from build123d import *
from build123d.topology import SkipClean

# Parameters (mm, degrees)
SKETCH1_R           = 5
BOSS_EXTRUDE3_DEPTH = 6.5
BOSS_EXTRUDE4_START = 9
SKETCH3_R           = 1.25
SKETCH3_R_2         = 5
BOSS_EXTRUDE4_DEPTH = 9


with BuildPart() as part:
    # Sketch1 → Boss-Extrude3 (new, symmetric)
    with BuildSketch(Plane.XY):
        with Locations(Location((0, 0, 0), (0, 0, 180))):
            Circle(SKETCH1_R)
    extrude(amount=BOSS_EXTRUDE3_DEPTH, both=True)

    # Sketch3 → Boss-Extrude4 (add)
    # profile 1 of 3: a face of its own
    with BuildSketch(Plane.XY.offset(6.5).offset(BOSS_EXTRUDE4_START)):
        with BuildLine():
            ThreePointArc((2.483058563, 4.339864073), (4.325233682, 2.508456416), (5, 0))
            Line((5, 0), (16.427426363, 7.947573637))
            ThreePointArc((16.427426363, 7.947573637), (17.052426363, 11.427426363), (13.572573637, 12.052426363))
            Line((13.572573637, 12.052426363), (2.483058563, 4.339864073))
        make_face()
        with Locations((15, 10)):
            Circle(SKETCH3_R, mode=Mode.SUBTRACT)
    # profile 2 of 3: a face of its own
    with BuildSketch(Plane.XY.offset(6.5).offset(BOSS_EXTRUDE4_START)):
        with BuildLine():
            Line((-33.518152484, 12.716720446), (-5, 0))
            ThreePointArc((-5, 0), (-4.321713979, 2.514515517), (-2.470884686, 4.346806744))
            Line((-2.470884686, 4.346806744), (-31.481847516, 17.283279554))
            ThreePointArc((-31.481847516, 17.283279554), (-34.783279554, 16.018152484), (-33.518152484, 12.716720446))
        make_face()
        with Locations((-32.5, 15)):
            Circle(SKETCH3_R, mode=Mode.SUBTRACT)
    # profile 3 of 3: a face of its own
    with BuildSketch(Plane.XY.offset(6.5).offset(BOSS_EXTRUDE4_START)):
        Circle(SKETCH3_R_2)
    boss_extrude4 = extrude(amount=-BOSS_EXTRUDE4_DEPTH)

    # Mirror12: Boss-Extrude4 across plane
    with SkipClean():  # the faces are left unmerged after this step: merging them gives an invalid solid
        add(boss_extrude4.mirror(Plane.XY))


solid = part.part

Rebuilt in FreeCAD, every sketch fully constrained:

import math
import FreeCAD as App
import Part
import Sketcher

doc = App.newDocument("Part")
body = doc.addObject("PartDesign::Body", "Body")

sketch1 = doc.addObject("Sketcher::SketchObject", "Sketch")
body.addObject(sketch1)
sketch1.AttachmentSupport = (doc.XY_Plane, [""])
sketch1.MapMode = "FlatFace"
sketch1.addGeometry(Part.Circle(App.Vector(0, 0, 0), App.Vector(0, 0, 1), 5), False)
sketch1.addConstraint(Sketcher.Constraint("Coincident", 0, 3, -1, 1))
sketch1.addConstraint(Sketcher.Constraint("Diameter", 0, 10.0))
pad1 = doc.addObject("PartDesign::Pad", "Pad")
body.addObject(pad1)
pad1.Profile = sketch1
pad1.Length = 13
pad1.Midplane = True

sketch2 = doc.addObject("Sketcher::SketchObject", "Sketch001")
body.addObject(sketch2)
sketch2.AttachmentSupport = (doc.XY_Plane, [""])
sketch2.MapMode = "FlatFace"
sketch2.AttachmentOffset = App.Placement(App.Vector(0, 0, 15.5), App.Rotation())
sketch2.addGeometry(Part.LineSegment(App.Vector(13.572574, 12.052426, 0), App.Vector(2.483059, 4.339864, 0)), False)
sketch2.addGeometry(Part.ArcOfCircle(Part.Circle(App.Vector(0, 0, 0), App.Vector(0, 0, 1), 5), math.radians(60.223915), math.radians(119.615491)), False)
sketch2.addGeometry(Part.LineSegment(App.Vector(-2.470885, 4.346807, 0), App.Vector(-31.481848, 17.28328, 0)), False)
sketch2.addGeometry(Part.ArcOfCircle(Part.Circle(App.Vector(-32.5, 15, 0), App.Vector(0, 0, 1), 2.5), math.radians(65.96711), math.radians(245.96711)), False)
sketch2.addGeometry(Part.LineSegment(App.Vector(-33.518152, 12.71672, 0), App.Vector(-5, 0, 0)), False)
sketch2.addGeometry(Part.ArcOfCircle(Part.Circle(App.Vector(0, 0, 0), App.Vector(0, 0, 1), 5), math.radians(180), math.radians(360)), False)
sketch2.addGeometry(Part.LineSegment(App.Vector(5, 0, 0), App.Vector(16.427426, 7.947574, 0)), False)
sketch2.addGeometry(Part.ArcOfCircle(Part.Circle(App.Vector(15, 10, 0), App.Vector(0, 0, 1), 2.5), math.radians(-55.182067), math.radians(124.817933)), False)
sketch2.addGeometry(Part.Circle(App.Vector(15, 10, 0), App.Vector(0, 0, 1), 1.25), False)
sketch2.addGeometry(Part.Circle(App.Vector(-32.5, 15, 0), App.Vector(0, 0, 1), 1.25), False)
sketch2.addConstraint(Sketcher.Constraint("Coincident", 0, 2, 1, 1))
sketch2.addConstraint(Sketcher.Constraint("Coincident", 1, 2, 2, 1))
sketch2.addConstraint(Sketcher.Constraint("Tangent", 2, 2, 3, 1))
sketch2.addConstraint(Sketcher.Constraint("Tangent", 3, 2, 4, 1))
sketch2.addConstraint(Sketcher.Constraint("Coincident", 4, 2, 5, 1))
sketch2.addConstraint(Sketcher.Constraint("Coincident", 5, 2, 6, 1))
sketch2.addConstraint(Sketcher.Constraint("Tangent", 6, 2, 7, 1))
sketch2.addConstraint(Sketcher.Constraint("Tangent", 7, 2, 0, 1))
sketch2.addConstraint(Sketcher.Constraint("Coincident", 1, 3, -1, 1))
sketch2.addConstraint(Sketcher.Constraint("Coincident", 5, 3, -1, 1))
sketch2.addConstraint(Sketcher.Constraint("Coincident", 8, 3, 7, 3))
sketch2.addConstraint(Sketcher.Constraint("Coincident", 9, 3, 3, 3))
sketch2.addConstraint(Sketcher.Constraint("Equal", 1, 5))
sketch2.addConstraint(Sketcher.Constraint("Equal", 3, 7))
sketch2.addConstraint(Sketcher.Constraint("Equal", 8, 9))
sketch2.addConstraint(Sketcher.Constraint("PointOnObject", 4, 2, -1))
sketch2.addConstraint(Sketcher.Constraint("PointOnObject", 5, 2, -1))
sketch2.addConstraint(Sketcher.Constraint("Parallel", 2, 4))
sketch2.addConstraint(Sketcher.Constraint("Parallel", 0, 6))
sketch2.addConstraint(Sketcher.Constraint("Radius", 1, 5.0))
sketch2.addConstraint(Sketcher.Constraint("Diameter", 8, 2.5))
sketch2.addConstraint(Sketcher.Constraint("Radius", 3, 2.5))
sketch2.addConstraint(Sketcher.Constraint("DistanceY", -1, 1, 3, 3, 15.0))
sketch2.addConstraint(Sketcher.Constraint("DistanceX", -1, 1, 7, 3, 15.0))
sketch2.addConstraint(Sketcher.Constraint("DistanceY", -1, 1, 7, 3, 10.0))
sketch2.addConstraint(Sketcher.Constraint("DistanceX", 3, 3, -1, 1, 32.5))
pad2 = doc.addObject("PartDesign::Pad", "Pad001")
body.addObject(pad2)
pad2.Profile = sketch2
pad2.Length = 9
pad2.Reversed = True
doc.recompute()

mirrored = doc.addObject("PartDesign::Mirrored", "Mirrored")
body.addObject(mirrored)
mirrored.Originals = [pad2]
mirrored.MirrorPlane = (doc.XY_Plane, [""])
body.Tip = mirrored

doc.recompute()
